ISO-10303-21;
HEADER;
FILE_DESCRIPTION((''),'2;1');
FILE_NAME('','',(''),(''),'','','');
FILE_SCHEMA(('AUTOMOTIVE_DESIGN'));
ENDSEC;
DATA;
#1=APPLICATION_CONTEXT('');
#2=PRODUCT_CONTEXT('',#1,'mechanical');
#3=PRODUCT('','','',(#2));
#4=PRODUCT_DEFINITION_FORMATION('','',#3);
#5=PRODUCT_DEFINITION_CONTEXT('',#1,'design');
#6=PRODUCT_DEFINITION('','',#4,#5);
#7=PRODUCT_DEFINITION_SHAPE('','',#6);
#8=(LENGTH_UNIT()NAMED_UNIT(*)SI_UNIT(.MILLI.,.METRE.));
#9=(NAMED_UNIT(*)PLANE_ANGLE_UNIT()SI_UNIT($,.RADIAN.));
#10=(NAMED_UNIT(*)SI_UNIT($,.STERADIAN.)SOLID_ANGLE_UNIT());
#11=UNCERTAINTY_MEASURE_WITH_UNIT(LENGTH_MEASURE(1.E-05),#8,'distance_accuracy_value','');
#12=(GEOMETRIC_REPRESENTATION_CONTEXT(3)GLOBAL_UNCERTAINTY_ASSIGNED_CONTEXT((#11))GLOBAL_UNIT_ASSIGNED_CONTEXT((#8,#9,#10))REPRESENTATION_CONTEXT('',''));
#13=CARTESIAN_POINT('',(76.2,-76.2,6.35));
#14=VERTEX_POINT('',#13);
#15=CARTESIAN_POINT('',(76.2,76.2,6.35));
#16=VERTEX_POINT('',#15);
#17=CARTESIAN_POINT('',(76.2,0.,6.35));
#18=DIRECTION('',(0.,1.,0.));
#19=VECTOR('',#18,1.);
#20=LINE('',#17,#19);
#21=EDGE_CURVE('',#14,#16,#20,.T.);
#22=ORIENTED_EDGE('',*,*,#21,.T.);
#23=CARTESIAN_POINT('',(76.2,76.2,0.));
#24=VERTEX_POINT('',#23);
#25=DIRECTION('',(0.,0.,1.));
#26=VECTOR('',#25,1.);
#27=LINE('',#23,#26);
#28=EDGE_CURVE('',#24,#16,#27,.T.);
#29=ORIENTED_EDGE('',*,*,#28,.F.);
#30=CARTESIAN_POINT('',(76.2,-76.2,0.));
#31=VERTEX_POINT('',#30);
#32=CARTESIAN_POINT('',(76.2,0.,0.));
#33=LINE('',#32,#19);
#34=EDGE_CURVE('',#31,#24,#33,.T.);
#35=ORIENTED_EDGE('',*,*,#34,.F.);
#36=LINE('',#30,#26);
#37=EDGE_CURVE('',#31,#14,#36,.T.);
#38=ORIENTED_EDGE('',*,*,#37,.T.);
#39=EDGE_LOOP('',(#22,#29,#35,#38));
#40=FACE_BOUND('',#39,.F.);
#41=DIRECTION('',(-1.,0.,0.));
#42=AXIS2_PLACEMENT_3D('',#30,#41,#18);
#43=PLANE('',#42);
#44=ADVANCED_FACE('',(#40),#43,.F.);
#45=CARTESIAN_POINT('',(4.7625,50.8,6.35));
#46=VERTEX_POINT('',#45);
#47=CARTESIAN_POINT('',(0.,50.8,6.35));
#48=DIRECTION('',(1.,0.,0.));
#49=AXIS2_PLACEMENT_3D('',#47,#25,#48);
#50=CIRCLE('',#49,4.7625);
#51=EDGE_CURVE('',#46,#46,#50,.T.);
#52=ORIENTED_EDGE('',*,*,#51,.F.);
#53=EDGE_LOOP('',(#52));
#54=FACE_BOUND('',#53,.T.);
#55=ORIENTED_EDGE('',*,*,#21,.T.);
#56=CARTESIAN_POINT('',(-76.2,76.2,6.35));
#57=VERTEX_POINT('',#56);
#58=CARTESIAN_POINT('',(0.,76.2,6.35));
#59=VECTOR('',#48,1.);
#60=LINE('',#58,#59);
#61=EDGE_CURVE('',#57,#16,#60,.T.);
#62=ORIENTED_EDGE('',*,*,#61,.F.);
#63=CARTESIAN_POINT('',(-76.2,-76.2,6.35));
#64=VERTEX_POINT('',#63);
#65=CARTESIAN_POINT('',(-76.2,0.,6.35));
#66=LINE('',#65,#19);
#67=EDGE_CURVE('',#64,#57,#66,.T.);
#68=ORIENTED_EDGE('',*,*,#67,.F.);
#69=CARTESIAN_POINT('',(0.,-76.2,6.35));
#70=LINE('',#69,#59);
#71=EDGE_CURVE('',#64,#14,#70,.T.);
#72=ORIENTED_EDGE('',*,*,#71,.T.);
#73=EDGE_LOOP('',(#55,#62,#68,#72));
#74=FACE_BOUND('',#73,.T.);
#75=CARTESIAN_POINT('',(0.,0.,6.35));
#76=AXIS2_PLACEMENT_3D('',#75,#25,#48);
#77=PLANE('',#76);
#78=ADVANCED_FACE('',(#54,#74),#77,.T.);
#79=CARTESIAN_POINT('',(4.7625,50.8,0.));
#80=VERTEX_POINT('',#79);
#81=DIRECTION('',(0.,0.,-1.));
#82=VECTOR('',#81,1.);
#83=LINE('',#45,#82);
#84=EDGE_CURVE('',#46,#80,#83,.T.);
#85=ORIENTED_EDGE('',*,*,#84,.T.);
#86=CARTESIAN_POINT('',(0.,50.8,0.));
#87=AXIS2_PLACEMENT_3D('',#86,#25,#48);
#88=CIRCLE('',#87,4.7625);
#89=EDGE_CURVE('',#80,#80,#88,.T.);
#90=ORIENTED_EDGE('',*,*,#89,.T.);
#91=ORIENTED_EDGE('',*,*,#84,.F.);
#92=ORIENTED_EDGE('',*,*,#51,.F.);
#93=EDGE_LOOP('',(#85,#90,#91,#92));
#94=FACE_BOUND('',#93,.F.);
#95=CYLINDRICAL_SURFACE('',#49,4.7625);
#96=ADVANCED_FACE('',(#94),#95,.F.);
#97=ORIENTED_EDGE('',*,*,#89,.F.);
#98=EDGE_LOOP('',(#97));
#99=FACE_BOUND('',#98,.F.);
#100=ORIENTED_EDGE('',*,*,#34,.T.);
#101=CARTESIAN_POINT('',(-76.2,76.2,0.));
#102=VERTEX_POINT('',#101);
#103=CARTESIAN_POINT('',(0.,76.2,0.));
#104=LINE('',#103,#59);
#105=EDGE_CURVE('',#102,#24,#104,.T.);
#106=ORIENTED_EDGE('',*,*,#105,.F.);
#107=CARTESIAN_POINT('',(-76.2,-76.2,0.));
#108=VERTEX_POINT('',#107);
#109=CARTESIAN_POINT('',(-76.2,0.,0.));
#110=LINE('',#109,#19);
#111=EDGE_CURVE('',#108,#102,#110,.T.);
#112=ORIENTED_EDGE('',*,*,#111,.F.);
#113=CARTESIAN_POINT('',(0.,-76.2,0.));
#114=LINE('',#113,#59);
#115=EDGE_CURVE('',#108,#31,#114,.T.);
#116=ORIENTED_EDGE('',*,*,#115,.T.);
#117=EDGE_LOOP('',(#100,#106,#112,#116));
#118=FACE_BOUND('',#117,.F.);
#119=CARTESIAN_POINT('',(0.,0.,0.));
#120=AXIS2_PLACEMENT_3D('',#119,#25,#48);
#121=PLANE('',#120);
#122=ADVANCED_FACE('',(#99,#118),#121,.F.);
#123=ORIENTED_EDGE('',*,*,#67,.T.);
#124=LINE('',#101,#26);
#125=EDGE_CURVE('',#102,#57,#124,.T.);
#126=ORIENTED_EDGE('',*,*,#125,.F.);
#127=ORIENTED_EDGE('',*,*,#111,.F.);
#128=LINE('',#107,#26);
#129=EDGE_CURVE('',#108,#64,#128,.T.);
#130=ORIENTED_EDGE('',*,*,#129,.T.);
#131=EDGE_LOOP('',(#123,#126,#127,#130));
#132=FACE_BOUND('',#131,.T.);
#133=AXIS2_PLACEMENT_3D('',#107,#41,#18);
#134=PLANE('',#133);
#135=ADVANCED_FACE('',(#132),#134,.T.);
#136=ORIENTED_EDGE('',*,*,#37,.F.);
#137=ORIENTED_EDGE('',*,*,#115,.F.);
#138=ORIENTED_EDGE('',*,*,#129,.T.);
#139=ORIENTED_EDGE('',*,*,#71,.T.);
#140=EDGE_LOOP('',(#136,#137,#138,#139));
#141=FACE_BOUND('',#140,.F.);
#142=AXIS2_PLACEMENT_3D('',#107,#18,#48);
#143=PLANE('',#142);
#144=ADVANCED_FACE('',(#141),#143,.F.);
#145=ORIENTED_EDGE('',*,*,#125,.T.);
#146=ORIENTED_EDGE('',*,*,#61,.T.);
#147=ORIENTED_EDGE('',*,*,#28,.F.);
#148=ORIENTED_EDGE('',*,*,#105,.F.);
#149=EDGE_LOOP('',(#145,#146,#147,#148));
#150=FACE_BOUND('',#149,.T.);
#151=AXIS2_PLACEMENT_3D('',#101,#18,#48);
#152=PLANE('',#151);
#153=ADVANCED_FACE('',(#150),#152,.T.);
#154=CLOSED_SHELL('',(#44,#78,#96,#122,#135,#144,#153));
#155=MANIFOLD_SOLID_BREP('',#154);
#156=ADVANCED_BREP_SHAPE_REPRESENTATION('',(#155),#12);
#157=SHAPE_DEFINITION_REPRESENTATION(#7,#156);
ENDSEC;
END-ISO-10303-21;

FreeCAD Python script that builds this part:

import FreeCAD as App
import Part
import Sketcher

V = App.Vector
Q = App.Units.Quantity

doc = App.newDocument("Part")
body = doc.addObject("PartDesign::Body", "Body")

# Sketch on XY plane
sketch1 = doc.addObject("Sketcher::SketchObject", "Sketch")
body.addObject(sketch1)
sketch1.AttachmentSupport = (doc.XY_Plane, [""])
sketch1.MapMode = "FlatFace"
sketch1.addGeometry([
    Part.LineSegment(V(-76.2, 76.2, 0), V(-76.2, -76.2, 0)),
    Part.LineSegment(V(-76.2, -76.2, 0), V(76.2, -76.2, 0)),
    Part.LineSegment(V(76.2, -76.2, 0), V(76.2, 76.2, 0)),
    Part.LineSegment(V(76.2, 76.2, 0), V(-76.2, 76.2, 0)),
], False)
sketch1.addConstraint([
    Sketcher.Constraint("Coincident", 0, 2, 1, 1),
    Sketcher.Constraint("Coincident", 1, 2, 2, 1),
    Sketcher.Constraint("Coincident", 2, 2, 3, 1),
    Sketcher.Constraint("Coincident", 3, 2, 0, 1),
    Sketcher.Constraint("Vertical", 0),
    Sketcher.Constraint("Horizontal", 1),
    Sketcher.Constraint("Vertical", 2),
    Sketcher.Constraint("Horizontal", 3),
    Sketcher.Constraint("Symmetric", 0, 2, 2, 2, -1, 1),
    Sketcher.Constraint("Equal", 3, 0),
    Sketcher.Constraint("DistanceX", 1, 1, 1, 2, Q("6 in")),
])
pad1 = doc.addObject("PartDesign::Pad", "Pad")
body.addObject(pad1)
pad1.Profile = sketch1
pad1.Length = Q("0.25 in")

# Sketch on XY plane
sketch2 = doc.addObject("Sketcher::SketchObject", "Sketch001")
body.addObject(sketch2)
sketch2.AttachmentSupport = (doc.XY_Plane, [""])
sketch2.MapMode = "FlatFace"
sketch2.AttachmentOffset = App.Placement(V(0, 0, 0.25 * 25.4), App.Rotation())
sketch2.addGeometry(Part.Circle(V(0, 50.8, 0), V(0, 0, 1), 4.7625), False)
sketch2.addConstraint([
    Sketcher.Constraint("PointOnObject", 0, 3, -2),
    Sketcher.Constraint("Diameter", 0, Q("0.375 in")),
    Sketcher.Constraint("DistanceY", -1, 1, 0, 3, Q("2 in")),
])
pocket1 = doc.addObject("PartDesign::Pocket", "Pocket")
body.addObject(pocket1)
pocket1.Profile = sketch2
pocket1.Type = "ThroughAll"

doc.recompute()
